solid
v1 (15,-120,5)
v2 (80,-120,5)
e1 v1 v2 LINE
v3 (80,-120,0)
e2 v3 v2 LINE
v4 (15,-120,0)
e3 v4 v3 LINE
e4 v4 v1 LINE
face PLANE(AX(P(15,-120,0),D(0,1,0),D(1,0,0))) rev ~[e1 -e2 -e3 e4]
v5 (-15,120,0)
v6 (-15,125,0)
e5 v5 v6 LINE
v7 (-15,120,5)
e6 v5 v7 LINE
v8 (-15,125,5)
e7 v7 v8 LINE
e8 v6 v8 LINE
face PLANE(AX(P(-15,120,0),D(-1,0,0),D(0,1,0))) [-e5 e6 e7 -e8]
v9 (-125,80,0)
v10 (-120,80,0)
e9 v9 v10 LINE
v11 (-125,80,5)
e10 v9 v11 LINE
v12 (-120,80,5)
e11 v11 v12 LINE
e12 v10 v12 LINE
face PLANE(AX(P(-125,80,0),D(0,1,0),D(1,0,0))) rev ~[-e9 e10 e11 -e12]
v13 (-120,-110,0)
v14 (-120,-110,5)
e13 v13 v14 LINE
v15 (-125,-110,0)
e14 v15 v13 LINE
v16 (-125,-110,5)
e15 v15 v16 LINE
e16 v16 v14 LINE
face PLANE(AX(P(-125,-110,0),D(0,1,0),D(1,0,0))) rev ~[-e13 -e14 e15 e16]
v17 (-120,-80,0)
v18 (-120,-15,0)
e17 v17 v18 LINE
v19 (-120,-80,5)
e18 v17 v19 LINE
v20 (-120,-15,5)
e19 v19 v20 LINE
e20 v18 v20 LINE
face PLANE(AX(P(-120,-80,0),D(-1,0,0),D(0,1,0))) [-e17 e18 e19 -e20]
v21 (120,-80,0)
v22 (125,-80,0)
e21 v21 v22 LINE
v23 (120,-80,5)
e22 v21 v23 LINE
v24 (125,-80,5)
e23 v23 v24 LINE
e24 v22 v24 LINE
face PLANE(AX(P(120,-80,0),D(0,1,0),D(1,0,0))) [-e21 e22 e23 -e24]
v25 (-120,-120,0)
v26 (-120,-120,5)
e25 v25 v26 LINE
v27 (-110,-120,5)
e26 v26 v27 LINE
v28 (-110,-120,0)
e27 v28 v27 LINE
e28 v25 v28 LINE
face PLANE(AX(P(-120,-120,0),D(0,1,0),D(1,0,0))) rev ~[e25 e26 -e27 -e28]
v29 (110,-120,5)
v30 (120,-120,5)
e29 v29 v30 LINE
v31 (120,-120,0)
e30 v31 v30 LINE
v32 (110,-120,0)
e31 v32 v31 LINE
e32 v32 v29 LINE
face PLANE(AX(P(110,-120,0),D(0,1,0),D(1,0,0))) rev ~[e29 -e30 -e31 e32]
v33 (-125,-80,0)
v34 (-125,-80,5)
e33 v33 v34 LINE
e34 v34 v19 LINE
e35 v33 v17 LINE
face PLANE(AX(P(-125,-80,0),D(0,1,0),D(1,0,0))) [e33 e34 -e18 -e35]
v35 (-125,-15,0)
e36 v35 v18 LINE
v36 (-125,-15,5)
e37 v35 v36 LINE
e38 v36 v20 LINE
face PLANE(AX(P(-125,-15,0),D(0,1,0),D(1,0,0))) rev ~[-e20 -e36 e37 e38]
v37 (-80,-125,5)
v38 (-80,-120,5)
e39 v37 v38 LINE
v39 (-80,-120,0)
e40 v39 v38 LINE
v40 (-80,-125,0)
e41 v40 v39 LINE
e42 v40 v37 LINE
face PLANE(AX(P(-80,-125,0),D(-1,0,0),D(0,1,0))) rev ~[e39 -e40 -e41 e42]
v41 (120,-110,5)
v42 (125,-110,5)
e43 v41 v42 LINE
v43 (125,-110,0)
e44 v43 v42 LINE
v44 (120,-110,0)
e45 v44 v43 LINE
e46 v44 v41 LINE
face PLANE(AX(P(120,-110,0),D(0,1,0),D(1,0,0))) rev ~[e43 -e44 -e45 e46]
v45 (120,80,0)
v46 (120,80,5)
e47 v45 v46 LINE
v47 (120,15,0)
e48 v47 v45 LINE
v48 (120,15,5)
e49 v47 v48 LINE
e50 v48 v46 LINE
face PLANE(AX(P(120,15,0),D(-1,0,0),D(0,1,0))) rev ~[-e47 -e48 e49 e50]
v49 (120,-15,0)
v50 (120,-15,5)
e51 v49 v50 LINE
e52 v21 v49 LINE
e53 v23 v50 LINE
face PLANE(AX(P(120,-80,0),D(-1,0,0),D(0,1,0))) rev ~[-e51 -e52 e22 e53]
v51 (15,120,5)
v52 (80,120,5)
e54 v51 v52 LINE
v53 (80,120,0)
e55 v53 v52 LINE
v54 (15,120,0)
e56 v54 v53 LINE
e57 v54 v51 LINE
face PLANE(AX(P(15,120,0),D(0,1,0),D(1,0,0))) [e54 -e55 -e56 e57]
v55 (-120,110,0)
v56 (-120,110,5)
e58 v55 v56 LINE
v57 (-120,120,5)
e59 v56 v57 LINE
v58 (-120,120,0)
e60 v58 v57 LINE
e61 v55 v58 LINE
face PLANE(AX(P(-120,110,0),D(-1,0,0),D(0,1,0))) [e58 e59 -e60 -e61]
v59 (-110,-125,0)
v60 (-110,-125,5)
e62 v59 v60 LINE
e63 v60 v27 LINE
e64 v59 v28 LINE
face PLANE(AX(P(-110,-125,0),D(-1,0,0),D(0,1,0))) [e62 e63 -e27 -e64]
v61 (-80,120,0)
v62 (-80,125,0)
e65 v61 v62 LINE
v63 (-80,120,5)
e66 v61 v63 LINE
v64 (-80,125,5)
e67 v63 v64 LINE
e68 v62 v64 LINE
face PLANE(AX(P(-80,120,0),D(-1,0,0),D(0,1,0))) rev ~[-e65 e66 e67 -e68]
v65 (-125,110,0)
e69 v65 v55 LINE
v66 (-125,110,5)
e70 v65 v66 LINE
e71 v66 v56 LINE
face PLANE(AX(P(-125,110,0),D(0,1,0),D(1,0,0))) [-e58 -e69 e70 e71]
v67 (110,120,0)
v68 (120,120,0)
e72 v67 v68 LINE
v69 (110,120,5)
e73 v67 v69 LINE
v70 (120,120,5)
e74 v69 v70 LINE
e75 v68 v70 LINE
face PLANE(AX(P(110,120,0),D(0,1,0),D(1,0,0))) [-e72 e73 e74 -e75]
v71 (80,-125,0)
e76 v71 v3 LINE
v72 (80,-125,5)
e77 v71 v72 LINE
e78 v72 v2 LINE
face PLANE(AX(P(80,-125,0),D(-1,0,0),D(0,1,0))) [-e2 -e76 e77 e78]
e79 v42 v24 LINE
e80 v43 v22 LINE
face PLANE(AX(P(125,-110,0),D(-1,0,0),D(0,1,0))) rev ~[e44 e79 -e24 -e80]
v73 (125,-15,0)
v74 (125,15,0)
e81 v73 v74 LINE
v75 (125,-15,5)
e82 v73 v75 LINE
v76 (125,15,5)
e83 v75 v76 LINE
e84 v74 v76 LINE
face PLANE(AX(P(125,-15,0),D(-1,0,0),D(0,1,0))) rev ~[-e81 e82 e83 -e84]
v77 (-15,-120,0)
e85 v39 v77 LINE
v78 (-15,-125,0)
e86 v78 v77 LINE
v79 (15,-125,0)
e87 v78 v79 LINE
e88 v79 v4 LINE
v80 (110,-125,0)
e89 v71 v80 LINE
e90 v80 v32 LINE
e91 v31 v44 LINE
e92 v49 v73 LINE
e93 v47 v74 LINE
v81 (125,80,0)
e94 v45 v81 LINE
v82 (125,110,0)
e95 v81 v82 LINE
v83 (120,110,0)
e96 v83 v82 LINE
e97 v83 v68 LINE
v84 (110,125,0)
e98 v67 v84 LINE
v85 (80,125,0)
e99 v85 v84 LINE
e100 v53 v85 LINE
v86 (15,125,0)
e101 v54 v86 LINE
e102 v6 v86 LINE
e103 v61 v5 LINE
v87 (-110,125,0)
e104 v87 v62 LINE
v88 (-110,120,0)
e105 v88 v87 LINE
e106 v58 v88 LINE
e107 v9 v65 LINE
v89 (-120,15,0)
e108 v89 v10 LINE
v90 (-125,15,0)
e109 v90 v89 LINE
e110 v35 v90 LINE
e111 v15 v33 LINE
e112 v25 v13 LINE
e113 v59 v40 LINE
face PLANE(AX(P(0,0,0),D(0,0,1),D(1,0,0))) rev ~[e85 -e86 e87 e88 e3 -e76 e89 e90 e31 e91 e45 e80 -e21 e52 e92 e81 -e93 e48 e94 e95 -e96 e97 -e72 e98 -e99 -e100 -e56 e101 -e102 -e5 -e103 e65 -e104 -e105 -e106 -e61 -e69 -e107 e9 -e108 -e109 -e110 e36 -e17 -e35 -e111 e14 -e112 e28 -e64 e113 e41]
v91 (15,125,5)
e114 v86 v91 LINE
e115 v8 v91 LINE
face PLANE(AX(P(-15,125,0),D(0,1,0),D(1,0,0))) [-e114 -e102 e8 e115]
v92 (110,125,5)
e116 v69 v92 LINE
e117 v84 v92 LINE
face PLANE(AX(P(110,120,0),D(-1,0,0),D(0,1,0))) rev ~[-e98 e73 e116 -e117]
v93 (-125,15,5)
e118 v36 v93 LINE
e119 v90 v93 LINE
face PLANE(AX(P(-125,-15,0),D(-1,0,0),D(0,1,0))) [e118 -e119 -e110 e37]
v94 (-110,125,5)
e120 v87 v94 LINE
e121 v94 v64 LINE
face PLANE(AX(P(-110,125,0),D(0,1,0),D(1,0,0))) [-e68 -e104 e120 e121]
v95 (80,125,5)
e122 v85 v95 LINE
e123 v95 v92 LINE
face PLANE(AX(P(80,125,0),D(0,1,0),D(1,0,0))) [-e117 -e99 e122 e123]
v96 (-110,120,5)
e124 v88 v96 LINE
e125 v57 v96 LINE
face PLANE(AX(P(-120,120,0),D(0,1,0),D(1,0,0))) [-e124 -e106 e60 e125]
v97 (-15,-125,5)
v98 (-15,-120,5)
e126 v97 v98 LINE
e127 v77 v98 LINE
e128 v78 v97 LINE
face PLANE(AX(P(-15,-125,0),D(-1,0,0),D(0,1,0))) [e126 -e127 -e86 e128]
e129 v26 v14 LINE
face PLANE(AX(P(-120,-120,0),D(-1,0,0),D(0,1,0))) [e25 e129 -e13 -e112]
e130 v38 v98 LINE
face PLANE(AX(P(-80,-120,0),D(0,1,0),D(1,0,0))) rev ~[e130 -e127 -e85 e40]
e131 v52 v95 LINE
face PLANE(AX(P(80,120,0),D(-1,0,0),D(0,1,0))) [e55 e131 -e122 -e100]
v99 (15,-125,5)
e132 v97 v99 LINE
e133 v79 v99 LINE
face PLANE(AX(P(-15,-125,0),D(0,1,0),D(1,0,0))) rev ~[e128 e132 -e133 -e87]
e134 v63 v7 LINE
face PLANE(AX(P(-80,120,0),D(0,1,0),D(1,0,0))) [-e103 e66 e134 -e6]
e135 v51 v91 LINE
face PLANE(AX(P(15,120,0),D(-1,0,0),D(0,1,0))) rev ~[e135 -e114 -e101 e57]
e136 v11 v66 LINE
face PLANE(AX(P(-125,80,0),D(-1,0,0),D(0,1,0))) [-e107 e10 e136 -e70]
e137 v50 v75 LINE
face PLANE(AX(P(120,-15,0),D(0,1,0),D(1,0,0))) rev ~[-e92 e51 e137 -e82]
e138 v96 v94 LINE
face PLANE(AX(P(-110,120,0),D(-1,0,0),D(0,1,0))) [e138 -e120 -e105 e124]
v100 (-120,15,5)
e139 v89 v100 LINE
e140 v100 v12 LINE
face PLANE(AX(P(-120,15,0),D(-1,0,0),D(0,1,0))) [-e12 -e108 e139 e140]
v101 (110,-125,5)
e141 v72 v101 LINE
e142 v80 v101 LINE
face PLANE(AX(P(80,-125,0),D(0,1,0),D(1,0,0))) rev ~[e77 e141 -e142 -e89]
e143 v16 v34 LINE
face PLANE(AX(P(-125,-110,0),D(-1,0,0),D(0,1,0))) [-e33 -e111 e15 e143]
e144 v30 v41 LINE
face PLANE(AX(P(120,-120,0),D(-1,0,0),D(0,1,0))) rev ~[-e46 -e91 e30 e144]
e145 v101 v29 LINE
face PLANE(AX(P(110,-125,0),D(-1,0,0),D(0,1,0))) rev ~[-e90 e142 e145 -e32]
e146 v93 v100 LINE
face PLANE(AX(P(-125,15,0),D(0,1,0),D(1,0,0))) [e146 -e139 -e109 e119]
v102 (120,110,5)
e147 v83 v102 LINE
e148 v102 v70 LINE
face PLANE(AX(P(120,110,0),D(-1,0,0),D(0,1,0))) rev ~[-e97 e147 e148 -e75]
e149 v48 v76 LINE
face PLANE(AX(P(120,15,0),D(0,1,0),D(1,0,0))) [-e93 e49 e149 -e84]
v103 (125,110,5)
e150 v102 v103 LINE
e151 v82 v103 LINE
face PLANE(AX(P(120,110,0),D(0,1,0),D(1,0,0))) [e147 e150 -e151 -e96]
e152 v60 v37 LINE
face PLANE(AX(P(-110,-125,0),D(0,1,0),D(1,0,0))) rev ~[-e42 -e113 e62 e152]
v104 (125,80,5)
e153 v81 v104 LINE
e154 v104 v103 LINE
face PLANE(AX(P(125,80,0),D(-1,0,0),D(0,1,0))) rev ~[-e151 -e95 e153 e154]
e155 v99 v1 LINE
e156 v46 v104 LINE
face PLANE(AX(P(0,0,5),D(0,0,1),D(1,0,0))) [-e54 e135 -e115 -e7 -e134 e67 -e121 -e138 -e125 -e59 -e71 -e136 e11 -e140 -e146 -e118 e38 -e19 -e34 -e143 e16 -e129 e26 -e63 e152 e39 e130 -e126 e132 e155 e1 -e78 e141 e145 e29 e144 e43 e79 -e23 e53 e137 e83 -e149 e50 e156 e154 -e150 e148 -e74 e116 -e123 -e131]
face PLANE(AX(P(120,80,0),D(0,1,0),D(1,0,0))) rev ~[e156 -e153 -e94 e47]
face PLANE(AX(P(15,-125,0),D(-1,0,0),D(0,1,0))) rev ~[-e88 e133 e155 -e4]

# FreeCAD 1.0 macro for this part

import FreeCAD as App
import Part
import Sketcher

V = App.Vector

doc = App.newDocument("Part")
body = doc.addObject("PartDesign::Body", "Body")

sketch1 = doc.addObject("Sketcher::SketchObject", "Sketch")
body.addObject(sketch1)
sketch1.AttachmentSupport = (doc.XY_Plane, [""])
sketch1.MapMode = "FlatFace"
sketch1.addGeometry([
    Part.LineSegment(V(-120, -110, 0), V(-120, -120, 0)),
    Part.LineSegment(V(-120, -120, 0), V(-110, -120, 0)),
    Part.LineSegment(V(-110, -120, 0), V(-110, -125, 0)),
    Part.LineSegment(V(-110, -125, 0), V(-80, -125, 0)),
    Part.LineSegment(V(-80, -125, 0), V(-80, -120, 0)),
    Part.LineSegment(V(-80, -120, 0), V(-15, -120, 0)),
    Part.LineSegment(V(-15, -120, 0), V(-15, -125, 0)),
    Part.LineSegment(V(-15, -125, 0), V(15, -125, 0)),
    Part.LineSegment(V(15, -125, 0), V(15, -120, 0)),
    Part.LineSegment(V(15, -120, 0), V(80, -120, 0)),
    Part.LineSegment(V(80, -120, 0), V(80, -125, 0)),
    Part.LineSegment(V(80, -125, 0), V(110, -125, 0)),
    Part.LineSegment(V(110, -125, 0), V(110, -120, 0)),
    Part.LineSegment(V(110, -120, 0), V(120, -120, 0)),
    Part.LineSegment(V(120, -120, 0), V(120, -110, 0)),
    Part.LineSegment(V(120, -110, 0), V(125, -110, 0)),
    Part.LineSegment(V(125, -110, 0), V(125, -80, 0)),
    Part.LineSegment(V(125, -80, 0), V(120, -80, 0)),
    Part.LineSegment(V(120, -80, 0), V(120, -15, 0)),
    Part.LineSegment(V(120, -15, 0), V(125, -15, 0)),
    Part.LineSegment(V(125, -15, 0), V(125, 15, 0)),
    Part.LineSegment(V(125, 15, 0), V(120, 15, 0)),
    Part.LineSegment(V(120, 15, 0), V(120, 80, 0)),
    Part.LineSegment(V(120, 80, 0), V(125, 80, 0)),
    Part.LineSegment(V(125, 80, 0), V(125, 110, 0)),
    Part.LineSegment(V(125, 110, 0), V(120, 110, 0)),
    Part.LineSegment(V(120, 110, 0), V(120, 120, 0)),
    Part.LineSegment(V(120, 120, 0), V(110, 120, 0)),
    Part.LineSegment(V(110, 120, 0), V(110, 125, 0)),
    Part.LineSegment(V(110, 125, 0), V(80, 125, 0)),
    Part.LineSegment(V(80, 125, 0), V(80, 120, 0)),
    Part.LineSegment(V(80, 120, 0), V(15, 120, 0)),
    Part.LineSegment(V(15, 120, 0), V(15, 125, 0)),
    Part.LineSegment(V(15, 125, 0), V(-15, 125, 0)),
    Part.LineSegment(V(-15, 125, 0), V(-15, 120, 0)),
    Part.LineSegment(V(-15, 120, 0), V(-80, 120, 0)),
    Part.LineSegment(V(-80, 120, 0), V(-80, 125, 0)),
    Part.LineSegment(V(-80, 125, 0), V(-110, 125, 0)),
    Part.LineSegment(V(-110, 125, 0), V(-110, 120, 0)),
    Part.LineSegment(V(-110, 120, 0), V(-120, 120, 0)),
    Part.LineSegment(V(-120, 120, 0), V(-120, 110, 0)),
    Part.LineSegment(V(-120, 110, 0), V(-125, 110, 0)),
    Part.LineSegment(V(-125, 110, 0), V(-125, 80, 0)),
    Part.LineSegment(V(-125, 80, 0), V(-120, 80, 0)),
    Part.LineSegment(V(-120, 80, 0), V(-120, 15, 0)),
    Part.LineSegment(V(-120, 15, 0), V(-125, 15, 0)),
    Part.LineSegment(V(-125, 15, 0), V(-125, -15, 0)),
    Part.LineSegment(V(-125, -15, 0), V(-120, -15, 0)),
    Part.LineSegment(V(-120, -15, 0), V(-120, -80, 0)),
    Part.LineSegment(V(-120, -80, 0), V(-125, -80, 0)),
    Part.LineSegment(V(-125, -80, 0), V(-125, -110, 0)),
    Part.LineSegment(V(-125, -110, 0), V(-120, -110, 0)),
], False)
sketch1.addConstraint([
    Sketcher.Constraint("Coincident", 0, 2, 1, 1),
    Sketcher.Constraint("Coincident", 1, 2, 2, 1),
    Sketcher.Constraint("Coincident", 2, 2, 3, 1),
    Sketcher.Constraint("Coincident", 3, 2, 4, 1),
    Sketcher.Constraint("Coincident", 4, 2, 5, 1),
    Sketcher.Constraint("Coincident", 5, 2, 6, 1),
    Sketcher.Constraint("Coincident", 6, 2, 7, 1),
    Sketcher.Constraint("Coincident", 7, 2, 8, 1),
    Sketcher.Constraint("Coincident", 8, 2, 9, 1),
    Sketcher.Constraint("Coincident", 9, 2, 10, 1),
    Sketcher.Constraint("Coincident", 10, 2, 11, 1),
    Sketcher.Constraint("Coincident", 11, 2, 12, 1),
    Sketcher.Constraint("Coincident", 12, 2, 13, 1),
    Sketcher.Constraint("Coincident", 13, 2, 14, 1),
    Sketcher.Constraint("Coincident", 14, 2, 15, 1),
    Sketcher.Constraint("Coincident", 15, 2, 16, 1),
    Sketcher.Constraint("Coincident", 16, 2, 17, 1),
    Sketcher.Constraint("Coincident", 17, 2, 18, 1),
    Sketcher.Constraint("Coincident", 18, 2, 19, 1),
    Sketcher.Constraint("Coincident", 19, 2, 20, 1),
    Sketcher.Constraint("Coincident", 20, 2, 21, 1),
    Sketcher.Constraint("Coincident", 21, 2, 22, 1),
    Sketcher.Constraint("Coincident", 22, 2, 23, 1),
    Sketcher.Constraint("Coincident", 23, 2, 24, 1),
    Sketcher.Constraint("Coincident", 24, 2, 25, 1),
    Sketcher.Constraint("Coincident", 25, 2, 26, 1),
    Sketcher.Constraint("Coincident", 26, 2, 27, 1),
    Sketcher.Constraint("Coincident", 27, 2, 28, 1),
    Sketcher.Constraint("Coincident", 28, 2, 29, 1),
    Sketcher.Constraint("Coincident", 29, 2, 30, 1),
    Sketcher.Constraint("Coincident", 30, 2, 31, 1),
    Sketcher.Constraint("Coincident", 31, 2, 32, 1),
    Sketcher.Constraint("Coincident", 32, 2, 33, 1),
    Sketcher.Constraint("Coincident", 33, 2, 34, 1),
    Sketcher.Constraint("Coincident", 34, 2, 35, 1),
    Sketcher.Constraint("Coincident", 35, 2, 36, 1),
    Sketcher.Constraint("Coincident", 36, 2, 37, 1),
    Sketcher.Constraint("Coincident", 37, 2, 38, 1),
    Sketcher.Constraint("Coincident", 38, 2, 39, 1),
    Sketcher.Constraint("Coincident", 39, 2, 40, 1),
    Sketcher.Constraint("Coincident", 40, 2, 41, 1),
    Sketcher.Constraint("Coincident", 41, 2, 42, 1),
    Sketcher.Constraint("Coincident", 42, 2, 43, 1),
    Sketcher.Constraint("Coincident", 43, 2, 44, 1),
    Sketcher.Constraint("Coincident", 44, 2, 45, 1),
    Sketcher.Constraint("Coincident", 45, 2, 46, 1),
    Sketcher.Constraint("Coincident", 46, 2, 47, 1),
    Sketcher.Constraint("Coincident", 47, 2, 48, 1),
    Sketcher.Constraint("Coincident", 48, 2, 49, 1),
    Sketcher.Constraint("Coincident", 49, 2, 50, 1),
    Sketcher.Constraint("Coincident", 50, 2, 51, 1),
    Sketcher.Constraint("Coincident", 51, 2, 0, 1),
    Sketcher.Constraint("Vertical", 0),
    Sketcher.Constraint("Horizontal", 1),
    Sketcher.Constraint("Vertical", 2),
    Sketcher.Constraint("Horizontal", 3),
    Sketcher.Constraint("Vertical", 4),
    Sketcher.Constraint("Horizontal", 5),
    Sketcher.Constraint("Vertical", 6),
    Sketcher.Constraint("Horizontal", 7),
    Sketcher.Constraint("Vertical", 8),
    Sketcher.Constraint("Horizontal", 9),
    Sketcher.Constraint("Vertical", 10),
    Sketcher.Constraint("Horizontal", 11),
    Sketcher.Constraint("Vertical", 12),
    Sketcher.Constraint("Horizontal", 13),
    Sketcher.Constraint("Vertical", 14),
    Sketcher.Constraint("Horizontal", 15),
    Sketcher.Constraint("Vertical", 16),
    Sketcher.Constraint("Horizontal", 17),
    Sketcher.Constraint("Vertical", 18),
    Sketcher.Constraint("Horizontal", 19),
    Sketcher.Constraint("Vertical", 20),
    Sketcher.Constraint("Horizontal", 21),
    Sketcher.Constraint("Vertical", 22),
    Sketcher.Constraint("Horizontal", 23),
    Sketcher.Constraint("Vertical", 24),
    Sketcher.Constraint("Horizontal", 25),
    Sketcher.Constraint("Vertical", 26),
    Sketcher.Constraint("Horizontal", 27),
    Sketcher.Constraint("Vertical", 28),
    Sketcher.Constraint("Horizontal", 29),
    Sketcher.Constraint("Vertical", 30),
    Sketcher.Constraint("Horizontal", 31),
    Sketcher.Constraint("Vertical", 32),
    Sketcher.Constraint("Horizontal", 33),
    Sketcher.Constraint("Vertical", 34),
    Sketcher.Constraint("Horizontal", 35),
    Sketcher.Constraint("Vertical", 36),
    Sketcher.Constraint("Horizontal", 37),
    Sketcher.Constraint("Vertical", 38),
    Sketcher.Constraint("Horizontal", 39),
    Sketcher.Constraint("Vertical", 40),
    Sketcher.Constraint("Horizontal", 41),
    Sketcher.Constraint("Vertical", 42),
    Sketcher.Constraint("Horizontal", 43),
    Sketcher.Constraint("Vertical", 44),
    Sketcher.Constraint("Horizontal", 45),
    Sketcher.Constraint("Vertical", 46),
    Sketcher.Constraint("Horizontal", 47),
    Sketcher.Constraint("Vertical", 48),
    Sketcher.Constraint("Horizontal", 49),
    Sketcher.Constraint("Vertical", 50),
    Sketcher.Constraint("Horizontal", 51),
    Sketcher.Constraint("Symmetric", 0, 2, 26, 2, -1, 1),
    Sketcher.Constraint("Symmetric", 2, 2, 28, 2, -1, 1),
    Sketcher.Constraint("Symmetric", 4, 2, 30, 2, -1, 1),
    Sketcher.Constraint("Symmetric", 6, 2, 32, 2, -1, 1),
    Sketcher.Constraint("Symmetric", 8, 2, 34, 2, -1, 1),
    Sketcher.Constraint("Symmetric", 10, 2, 36, 2, -1, 1),
    Sketcher.Constraint("Symmetric", 12, 2, 38, 2, -1, 1),
    Sketcher.Constraint("Symmetric", 14, 2, 40, 2, -1, 1),
    Sketcher.Constraint("Symmetric", 16, 2, 42, 2, -1, 1),
    Sketcher.Constraint("Symmetric", 18, 2, 44, 2, -1, 1),
    Sketcher.Constraint("Symmetric", 20, 2, 46, 2, -1, 1),
    Sketcher.Constraint("Symmetric", 22, 2, 48, 2, -1, 1),
    Sketcher.Constraint("Symmetric", 24, 2, 50, 2, -1, 1),
    Sketcher.Constraint("Symmetric", 5, 2, 8, 2, -2),
    Sketcher.Constraint("Symmetric", 3, 2, 10, 2, -2),
    Sketcher.Constraint("Symmetric", 1, 2, 12, 2, -2),
    Sketcher.Constraint("Symmetric", 25, 2, 40, 2, -2),
    Sketcher.Constraint("Symmetric", 23, 2, 42, 2, -2),
    Sketcher.Constraint("Symmetric", 21, 2, 44, 2, -2),
    Sketcher.Constraint("Horizontal", 1, 2, 4, 2),
    Sketcher.Constraint("Horizontal", 3, 2, 6, 2),
    Sketcher.Constraint("Vertical", 14, 2, 17, 2),
    Sketcher.Constraint("Vertical", 16, 2, 19, 2),
    Sketcher.Constraint("Equal", 3, 7),
    Sketcher.Constraint("Equal", 39, 0),
    Sketcher.Constraint("Equal", 51, 2),
    Sketcher.Constraint("Equal", 37, 16),
    Sketcher.Constraint("Equal", 35, 18),
    Sketcher.Constraint("Equal", 16, 20),
    Sketcher.Constraint("DistanceX", 1, 1, 1, 2, 10.0),
    Sketcher.Constraint("DistanceX", 3, 1, 3, 2, 30.0),
    Sketcher.Constraint("DistanceX", 5, 1, 5, 2, 65.0),
    Sketcher.Constraint("DistanceX", 15, 1, 15, 2, 5.0),
])
pad1 = doc.addObject("PartDesign::Pad", "Pad")
body.addObject(pad1)
pad1.Profile = sketch1
pad1.Length = 5

doc.recompute()
